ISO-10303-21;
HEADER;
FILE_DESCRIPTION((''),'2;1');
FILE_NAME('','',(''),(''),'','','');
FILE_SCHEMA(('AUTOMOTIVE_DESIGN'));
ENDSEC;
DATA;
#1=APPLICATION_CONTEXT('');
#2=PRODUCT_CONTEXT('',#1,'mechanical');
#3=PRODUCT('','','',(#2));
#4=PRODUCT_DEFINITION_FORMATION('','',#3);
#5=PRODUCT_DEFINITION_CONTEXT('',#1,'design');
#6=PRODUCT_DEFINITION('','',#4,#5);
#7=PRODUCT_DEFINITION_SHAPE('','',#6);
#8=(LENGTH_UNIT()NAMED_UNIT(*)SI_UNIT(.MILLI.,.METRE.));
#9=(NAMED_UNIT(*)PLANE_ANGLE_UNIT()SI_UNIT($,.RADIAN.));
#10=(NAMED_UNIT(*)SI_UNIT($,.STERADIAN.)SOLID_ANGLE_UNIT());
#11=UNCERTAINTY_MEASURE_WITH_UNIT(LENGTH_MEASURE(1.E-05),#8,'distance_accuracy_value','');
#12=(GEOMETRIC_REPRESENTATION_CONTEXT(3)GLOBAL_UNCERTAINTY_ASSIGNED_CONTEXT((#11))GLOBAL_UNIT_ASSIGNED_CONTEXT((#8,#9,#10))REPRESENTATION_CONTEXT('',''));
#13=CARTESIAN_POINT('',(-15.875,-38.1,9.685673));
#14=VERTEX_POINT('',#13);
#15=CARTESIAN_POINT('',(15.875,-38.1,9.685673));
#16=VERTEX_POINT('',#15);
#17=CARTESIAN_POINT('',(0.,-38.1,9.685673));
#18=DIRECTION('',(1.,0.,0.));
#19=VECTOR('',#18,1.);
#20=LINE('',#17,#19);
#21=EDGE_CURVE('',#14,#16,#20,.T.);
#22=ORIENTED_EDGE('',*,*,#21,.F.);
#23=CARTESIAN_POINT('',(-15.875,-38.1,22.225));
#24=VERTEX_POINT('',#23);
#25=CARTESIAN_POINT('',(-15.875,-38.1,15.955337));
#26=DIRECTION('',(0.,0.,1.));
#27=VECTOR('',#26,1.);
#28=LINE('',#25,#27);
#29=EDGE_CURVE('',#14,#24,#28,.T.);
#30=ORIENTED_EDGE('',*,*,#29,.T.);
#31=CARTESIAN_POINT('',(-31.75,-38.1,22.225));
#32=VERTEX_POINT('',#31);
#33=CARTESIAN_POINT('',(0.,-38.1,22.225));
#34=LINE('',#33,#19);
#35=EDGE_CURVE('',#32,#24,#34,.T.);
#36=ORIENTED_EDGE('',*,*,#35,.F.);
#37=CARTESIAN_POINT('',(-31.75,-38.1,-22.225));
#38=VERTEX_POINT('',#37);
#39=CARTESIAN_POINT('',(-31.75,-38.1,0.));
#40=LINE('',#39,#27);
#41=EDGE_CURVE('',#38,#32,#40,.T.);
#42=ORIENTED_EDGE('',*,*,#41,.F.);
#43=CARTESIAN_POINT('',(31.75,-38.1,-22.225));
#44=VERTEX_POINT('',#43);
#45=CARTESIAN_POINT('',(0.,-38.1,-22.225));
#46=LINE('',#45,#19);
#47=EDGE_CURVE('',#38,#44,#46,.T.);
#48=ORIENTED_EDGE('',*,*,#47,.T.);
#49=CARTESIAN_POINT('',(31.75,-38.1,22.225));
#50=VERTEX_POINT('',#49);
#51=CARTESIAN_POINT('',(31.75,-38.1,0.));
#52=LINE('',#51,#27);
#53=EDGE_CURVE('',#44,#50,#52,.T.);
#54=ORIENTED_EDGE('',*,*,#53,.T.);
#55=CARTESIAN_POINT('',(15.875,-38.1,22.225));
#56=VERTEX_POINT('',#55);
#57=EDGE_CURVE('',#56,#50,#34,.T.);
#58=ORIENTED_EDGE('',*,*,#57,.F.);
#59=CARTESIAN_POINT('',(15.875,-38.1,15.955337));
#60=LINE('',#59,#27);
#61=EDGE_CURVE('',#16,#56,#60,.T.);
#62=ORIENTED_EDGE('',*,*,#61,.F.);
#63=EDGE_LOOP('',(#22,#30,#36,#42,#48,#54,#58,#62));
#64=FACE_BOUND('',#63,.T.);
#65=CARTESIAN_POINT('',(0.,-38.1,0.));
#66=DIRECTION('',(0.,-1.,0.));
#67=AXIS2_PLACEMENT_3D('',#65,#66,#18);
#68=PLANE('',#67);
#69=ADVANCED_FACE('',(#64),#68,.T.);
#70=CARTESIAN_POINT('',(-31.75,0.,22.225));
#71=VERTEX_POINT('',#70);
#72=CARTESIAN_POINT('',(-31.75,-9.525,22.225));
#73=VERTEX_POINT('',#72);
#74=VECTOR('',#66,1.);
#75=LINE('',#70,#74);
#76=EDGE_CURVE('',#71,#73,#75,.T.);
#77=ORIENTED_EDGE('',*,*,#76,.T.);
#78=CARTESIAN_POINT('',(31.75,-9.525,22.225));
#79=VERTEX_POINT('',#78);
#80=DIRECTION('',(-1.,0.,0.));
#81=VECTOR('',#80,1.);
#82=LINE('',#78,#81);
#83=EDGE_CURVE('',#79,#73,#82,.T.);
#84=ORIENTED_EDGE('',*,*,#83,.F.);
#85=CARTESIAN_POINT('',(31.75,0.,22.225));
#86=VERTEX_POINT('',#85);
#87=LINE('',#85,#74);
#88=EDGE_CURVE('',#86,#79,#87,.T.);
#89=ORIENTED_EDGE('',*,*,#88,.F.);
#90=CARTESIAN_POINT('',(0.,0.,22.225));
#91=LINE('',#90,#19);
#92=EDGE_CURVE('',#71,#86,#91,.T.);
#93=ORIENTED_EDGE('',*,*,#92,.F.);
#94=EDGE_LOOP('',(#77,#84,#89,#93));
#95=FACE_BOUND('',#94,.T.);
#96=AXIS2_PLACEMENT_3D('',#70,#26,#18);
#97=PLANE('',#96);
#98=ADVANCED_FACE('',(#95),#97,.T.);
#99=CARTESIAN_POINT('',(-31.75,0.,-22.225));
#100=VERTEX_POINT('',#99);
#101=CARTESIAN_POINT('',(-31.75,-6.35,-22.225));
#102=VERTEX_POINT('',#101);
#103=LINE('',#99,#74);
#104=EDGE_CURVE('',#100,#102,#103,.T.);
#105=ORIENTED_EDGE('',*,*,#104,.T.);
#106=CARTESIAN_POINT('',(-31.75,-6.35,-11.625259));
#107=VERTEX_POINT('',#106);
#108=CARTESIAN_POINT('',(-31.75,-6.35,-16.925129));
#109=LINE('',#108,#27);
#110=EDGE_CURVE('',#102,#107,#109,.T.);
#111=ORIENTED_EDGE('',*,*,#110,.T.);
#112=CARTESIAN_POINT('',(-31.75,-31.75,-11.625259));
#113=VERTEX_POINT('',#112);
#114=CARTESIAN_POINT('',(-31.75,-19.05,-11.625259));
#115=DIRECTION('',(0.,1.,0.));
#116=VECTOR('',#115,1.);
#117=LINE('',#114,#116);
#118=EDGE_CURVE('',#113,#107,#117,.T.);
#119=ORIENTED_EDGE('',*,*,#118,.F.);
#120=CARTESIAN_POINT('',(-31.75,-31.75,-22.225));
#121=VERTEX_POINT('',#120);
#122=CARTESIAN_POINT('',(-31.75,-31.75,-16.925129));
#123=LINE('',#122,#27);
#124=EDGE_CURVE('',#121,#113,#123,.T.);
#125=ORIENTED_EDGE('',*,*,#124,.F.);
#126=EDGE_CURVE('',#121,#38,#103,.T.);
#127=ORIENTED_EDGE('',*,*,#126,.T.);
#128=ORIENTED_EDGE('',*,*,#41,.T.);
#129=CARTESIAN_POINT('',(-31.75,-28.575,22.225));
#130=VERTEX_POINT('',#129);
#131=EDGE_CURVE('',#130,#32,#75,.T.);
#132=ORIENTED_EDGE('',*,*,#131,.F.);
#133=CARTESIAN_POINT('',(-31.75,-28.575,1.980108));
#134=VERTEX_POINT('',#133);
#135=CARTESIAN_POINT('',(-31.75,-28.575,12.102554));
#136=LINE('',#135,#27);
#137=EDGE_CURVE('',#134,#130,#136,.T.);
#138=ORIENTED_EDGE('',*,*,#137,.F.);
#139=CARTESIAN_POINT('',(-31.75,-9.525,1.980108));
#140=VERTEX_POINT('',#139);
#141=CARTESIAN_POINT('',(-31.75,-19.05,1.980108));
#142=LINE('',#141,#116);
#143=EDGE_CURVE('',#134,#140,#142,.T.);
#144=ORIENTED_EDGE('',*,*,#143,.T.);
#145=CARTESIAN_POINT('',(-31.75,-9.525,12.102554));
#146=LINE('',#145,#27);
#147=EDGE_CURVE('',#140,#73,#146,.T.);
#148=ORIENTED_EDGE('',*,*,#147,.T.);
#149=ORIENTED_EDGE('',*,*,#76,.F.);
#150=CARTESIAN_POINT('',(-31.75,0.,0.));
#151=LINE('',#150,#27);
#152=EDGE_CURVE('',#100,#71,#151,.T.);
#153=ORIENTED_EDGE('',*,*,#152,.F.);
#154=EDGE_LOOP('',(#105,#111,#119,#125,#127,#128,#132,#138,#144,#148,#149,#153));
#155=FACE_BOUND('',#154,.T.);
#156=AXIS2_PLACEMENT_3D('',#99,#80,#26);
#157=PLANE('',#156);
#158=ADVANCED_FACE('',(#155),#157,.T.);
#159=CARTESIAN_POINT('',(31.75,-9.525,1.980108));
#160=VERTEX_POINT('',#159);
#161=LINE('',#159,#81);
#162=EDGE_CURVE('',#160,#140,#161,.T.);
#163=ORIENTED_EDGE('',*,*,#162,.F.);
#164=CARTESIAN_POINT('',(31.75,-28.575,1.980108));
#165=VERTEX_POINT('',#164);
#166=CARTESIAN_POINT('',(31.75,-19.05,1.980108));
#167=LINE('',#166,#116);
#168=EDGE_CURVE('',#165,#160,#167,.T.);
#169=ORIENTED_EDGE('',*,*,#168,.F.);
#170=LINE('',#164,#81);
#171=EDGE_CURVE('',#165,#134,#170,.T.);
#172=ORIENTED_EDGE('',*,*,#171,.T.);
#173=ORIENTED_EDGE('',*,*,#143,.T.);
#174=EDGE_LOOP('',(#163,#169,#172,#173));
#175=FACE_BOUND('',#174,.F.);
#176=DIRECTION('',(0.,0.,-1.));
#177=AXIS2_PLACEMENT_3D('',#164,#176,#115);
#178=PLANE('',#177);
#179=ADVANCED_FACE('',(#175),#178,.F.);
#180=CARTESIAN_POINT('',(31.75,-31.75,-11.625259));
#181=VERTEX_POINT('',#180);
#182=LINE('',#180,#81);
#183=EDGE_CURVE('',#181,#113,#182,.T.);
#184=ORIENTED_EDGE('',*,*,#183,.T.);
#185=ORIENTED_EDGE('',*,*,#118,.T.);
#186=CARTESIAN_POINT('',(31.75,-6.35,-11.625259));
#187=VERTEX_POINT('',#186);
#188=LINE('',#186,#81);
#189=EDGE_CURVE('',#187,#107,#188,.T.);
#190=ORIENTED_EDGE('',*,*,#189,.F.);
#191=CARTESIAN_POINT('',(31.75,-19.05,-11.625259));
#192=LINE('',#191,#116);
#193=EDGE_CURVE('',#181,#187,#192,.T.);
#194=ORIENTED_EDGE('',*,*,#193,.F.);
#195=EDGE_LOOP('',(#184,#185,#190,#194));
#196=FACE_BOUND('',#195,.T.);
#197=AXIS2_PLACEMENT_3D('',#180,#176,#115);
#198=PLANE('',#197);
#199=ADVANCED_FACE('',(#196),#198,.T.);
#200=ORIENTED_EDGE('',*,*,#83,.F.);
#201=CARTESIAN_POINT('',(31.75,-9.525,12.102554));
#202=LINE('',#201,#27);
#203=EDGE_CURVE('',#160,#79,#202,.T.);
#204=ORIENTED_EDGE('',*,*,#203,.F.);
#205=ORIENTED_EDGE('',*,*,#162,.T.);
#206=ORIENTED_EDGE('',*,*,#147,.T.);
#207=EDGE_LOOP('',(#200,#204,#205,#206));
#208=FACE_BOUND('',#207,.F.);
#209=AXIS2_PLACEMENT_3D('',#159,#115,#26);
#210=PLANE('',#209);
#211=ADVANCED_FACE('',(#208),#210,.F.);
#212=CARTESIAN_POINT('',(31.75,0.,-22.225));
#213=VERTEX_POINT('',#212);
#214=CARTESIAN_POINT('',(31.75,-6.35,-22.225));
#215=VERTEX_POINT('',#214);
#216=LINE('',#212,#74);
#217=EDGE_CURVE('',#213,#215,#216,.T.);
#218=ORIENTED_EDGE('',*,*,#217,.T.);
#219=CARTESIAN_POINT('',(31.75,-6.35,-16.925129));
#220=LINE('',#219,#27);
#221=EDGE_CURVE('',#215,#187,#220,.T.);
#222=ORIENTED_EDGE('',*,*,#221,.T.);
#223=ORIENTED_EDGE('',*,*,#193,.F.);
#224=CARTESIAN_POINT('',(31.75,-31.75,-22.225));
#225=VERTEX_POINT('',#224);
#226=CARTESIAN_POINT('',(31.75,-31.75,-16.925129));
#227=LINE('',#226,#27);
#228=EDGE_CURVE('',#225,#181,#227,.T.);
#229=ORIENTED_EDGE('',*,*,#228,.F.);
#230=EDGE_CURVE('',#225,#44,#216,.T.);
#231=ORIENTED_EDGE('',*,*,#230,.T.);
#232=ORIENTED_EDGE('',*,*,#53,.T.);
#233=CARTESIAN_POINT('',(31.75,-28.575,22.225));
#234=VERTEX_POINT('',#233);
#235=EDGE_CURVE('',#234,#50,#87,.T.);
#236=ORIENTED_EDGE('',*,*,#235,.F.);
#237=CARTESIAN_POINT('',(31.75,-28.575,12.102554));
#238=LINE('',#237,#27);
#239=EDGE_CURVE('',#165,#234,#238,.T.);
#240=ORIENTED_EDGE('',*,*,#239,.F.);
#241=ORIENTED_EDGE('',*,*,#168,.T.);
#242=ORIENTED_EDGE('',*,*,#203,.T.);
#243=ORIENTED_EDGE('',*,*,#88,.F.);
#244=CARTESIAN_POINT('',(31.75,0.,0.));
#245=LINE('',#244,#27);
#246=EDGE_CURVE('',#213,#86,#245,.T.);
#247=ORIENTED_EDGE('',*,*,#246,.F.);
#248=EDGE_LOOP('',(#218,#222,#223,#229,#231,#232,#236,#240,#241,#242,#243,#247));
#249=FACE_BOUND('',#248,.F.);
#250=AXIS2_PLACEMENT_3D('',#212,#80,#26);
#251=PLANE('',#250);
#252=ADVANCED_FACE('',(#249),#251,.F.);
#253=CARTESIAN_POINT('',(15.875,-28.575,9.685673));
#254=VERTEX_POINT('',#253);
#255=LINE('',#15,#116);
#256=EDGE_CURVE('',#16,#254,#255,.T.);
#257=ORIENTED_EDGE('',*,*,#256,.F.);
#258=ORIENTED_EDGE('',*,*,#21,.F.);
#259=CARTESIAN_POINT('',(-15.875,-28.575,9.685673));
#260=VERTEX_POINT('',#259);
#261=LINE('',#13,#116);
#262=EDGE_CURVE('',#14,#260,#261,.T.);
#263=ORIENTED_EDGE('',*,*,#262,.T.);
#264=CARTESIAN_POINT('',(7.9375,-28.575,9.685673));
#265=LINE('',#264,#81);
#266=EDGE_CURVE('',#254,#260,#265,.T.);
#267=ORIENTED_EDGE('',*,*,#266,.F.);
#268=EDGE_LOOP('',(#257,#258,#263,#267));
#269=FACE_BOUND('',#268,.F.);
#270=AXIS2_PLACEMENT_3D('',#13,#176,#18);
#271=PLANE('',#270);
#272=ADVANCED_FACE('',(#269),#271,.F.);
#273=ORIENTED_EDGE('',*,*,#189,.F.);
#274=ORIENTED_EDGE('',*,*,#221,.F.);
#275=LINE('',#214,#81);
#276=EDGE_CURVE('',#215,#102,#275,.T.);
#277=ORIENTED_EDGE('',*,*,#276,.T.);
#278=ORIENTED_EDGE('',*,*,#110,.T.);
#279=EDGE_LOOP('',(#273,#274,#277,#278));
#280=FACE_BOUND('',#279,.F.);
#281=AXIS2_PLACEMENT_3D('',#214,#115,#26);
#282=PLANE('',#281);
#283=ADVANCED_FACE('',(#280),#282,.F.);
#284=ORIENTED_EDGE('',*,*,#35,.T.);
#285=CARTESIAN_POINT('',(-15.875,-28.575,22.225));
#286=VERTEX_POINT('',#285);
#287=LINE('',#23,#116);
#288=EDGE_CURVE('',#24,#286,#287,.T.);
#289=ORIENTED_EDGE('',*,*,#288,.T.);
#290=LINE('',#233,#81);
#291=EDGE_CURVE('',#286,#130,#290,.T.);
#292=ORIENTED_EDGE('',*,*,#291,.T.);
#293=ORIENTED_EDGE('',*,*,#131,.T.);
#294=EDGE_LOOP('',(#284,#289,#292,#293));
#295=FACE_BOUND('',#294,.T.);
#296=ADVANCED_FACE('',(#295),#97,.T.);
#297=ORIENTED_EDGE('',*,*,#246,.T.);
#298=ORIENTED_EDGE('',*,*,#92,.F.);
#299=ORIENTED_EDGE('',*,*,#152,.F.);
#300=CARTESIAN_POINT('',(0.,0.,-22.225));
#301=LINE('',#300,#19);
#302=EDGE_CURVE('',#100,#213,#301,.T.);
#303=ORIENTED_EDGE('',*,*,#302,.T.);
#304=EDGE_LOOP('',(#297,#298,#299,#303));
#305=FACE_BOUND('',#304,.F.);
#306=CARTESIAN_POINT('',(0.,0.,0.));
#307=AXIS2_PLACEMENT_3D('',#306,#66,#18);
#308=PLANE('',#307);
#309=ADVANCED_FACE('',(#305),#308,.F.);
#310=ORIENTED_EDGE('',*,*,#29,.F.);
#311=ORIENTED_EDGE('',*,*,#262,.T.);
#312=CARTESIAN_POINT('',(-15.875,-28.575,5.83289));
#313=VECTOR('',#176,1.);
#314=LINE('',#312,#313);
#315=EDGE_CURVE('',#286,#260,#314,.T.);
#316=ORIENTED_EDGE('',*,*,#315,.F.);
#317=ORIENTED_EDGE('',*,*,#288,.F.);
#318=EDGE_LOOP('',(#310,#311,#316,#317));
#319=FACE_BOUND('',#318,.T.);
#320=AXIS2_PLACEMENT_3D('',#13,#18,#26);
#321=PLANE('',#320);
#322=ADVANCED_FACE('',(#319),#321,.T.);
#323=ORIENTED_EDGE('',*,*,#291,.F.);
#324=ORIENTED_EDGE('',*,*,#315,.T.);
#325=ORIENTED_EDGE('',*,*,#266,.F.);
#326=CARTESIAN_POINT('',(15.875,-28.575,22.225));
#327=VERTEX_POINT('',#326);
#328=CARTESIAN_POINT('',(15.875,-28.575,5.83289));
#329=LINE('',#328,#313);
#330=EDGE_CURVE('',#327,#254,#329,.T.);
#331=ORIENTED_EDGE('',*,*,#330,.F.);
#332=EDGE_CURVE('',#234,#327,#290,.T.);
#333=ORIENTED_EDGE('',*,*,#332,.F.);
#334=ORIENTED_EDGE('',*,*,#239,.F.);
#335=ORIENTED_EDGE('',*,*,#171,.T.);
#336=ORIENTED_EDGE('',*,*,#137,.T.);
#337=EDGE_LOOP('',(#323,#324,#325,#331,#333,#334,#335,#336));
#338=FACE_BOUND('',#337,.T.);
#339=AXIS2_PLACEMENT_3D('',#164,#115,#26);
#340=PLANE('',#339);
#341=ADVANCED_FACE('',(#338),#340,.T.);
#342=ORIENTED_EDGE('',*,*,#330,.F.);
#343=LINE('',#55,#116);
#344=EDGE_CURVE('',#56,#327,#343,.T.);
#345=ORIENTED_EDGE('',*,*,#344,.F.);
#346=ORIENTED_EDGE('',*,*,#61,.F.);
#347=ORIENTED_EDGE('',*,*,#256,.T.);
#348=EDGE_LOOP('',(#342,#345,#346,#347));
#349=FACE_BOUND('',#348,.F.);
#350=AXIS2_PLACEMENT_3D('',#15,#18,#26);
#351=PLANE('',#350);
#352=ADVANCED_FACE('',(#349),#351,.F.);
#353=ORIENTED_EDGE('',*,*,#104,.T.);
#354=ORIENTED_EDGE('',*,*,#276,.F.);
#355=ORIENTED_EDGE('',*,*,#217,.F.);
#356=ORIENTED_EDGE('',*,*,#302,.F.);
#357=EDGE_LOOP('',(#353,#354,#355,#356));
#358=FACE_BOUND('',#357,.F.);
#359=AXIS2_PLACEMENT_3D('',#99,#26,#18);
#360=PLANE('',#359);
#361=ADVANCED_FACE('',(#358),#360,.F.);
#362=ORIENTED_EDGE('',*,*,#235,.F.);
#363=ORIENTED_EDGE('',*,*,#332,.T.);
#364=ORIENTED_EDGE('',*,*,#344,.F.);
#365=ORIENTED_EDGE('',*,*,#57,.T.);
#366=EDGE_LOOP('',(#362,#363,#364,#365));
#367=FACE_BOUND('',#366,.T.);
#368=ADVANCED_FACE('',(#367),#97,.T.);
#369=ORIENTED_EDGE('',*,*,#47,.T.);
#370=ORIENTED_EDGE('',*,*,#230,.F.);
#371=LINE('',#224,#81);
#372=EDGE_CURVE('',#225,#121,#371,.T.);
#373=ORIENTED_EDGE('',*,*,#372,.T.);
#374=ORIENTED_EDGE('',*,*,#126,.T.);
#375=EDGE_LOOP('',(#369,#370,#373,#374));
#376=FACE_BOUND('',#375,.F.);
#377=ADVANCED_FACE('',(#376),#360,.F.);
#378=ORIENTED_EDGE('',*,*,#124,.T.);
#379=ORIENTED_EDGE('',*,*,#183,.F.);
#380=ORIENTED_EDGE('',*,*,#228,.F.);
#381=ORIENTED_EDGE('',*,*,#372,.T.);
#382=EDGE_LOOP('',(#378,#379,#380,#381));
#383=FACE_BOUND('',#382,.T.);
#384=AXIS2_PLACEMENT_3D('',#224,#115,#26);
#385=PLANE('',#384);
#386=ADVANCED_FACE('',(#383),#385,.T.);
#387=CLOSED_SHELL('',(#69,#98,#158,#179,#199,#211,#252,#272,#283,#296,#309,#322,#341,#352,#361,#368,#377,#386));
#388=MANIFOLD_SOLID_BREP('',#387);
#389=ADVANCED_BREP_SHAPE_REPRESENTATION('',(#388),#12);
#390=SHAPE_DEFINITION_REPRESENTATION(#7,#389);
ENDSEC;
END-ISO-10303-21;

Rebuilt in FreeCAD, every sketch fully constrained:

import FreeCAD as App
import Part
import Sketcher
Q = App.Units.Quantity

doc = App.newDocument("Part")
params = doc.addObject("Spreadsheet::Sheet", "Params")
for row, (alias, value) in enumerate([
    ("sketch1_width", "2.5 in"),
    ("sketch1_height", "1.75 in"),
    ("pad1_length", "1.5 in"),
    ("sketch2_width", "0.75 in"),
    ("pocket1_length", "2.5 in"),
    ("sketch3_width", "1.25 in"),
    ("pocket2_length", "1 in"),
    ("sketch4_width", "1 in"),
    ("pocket3_length", "2.5 in"),
], start=1):
    params.set(f"A{row}", alias)
    params.set(f"B{row}", "=" + value)
    params.setAlias(f"B{row}", alias)

body = doc.addObject("PartDesign::Body", "Body")

# Sketch on XZ plane
sketch1 = body.newObject("Sketcher::SketchObject", "Sketch")
sketch1.AttachmentSupport = (doc.getObject("XZ_Plane"), [""])
sketch1.MapMode = "FlatFace"
sketch1.addGeometry(Part.LineSegment(App.Vector(-32, 22, 0), App.Vector(-32, -22, 0)), False)
sketch1.addGeometry(Part.LineSegment(App.Vector(-32, -22, 0), App.Vector(32, -22, 0)), False)
sketch1.addGeometry(Part.LineSegment(App.Vector(32, -22, 0), App.Vector(32, 22, 0)), False)
sketch1.addGeometry(Part.LineSegment(App.Vector(32, 22, 0), App.Vector(-32, 22, 0)), False)
sketch1.addConstraint(Sketcher.Constraint("Coincident", 0, 2, 1, 1))
sketch1.addConstraint(Sketcher.Constraint("Coincident", 1, 2, 2, 1))
sketch1.addConstraint(Sketcher.Constraint("Coincident", 2, 2, 3, 1))
sketch1.addConstraint(Sketcher.Constraint("Coincident", 3, 2, 0, 1))
sketch1.addConstraint(Sketcher.Constraint("Vertical", 0))
sketch1.addConstraint(Sketcher.Constraint("Horizontal", 1))
sketch1.addConstraint(Sketcher.Constraint("Vertical", 2))
sketch1.addConstraint(Sketcher.Constraint("Horizontal", 3))
sketch1.addConstraint(Sketcher.Constraint("Symmetric", 0, 2, 2, 2, -1, 1))
sketch1.addConstraint(Sketcher.Constraint("DistanceX", 1, 1, 1, 2, Q("2.5 in")))
sketch1.addConstraint(Sketcher.Constraint("DistanceY", 0, 2, 0, 1, Q("1.75 in")))
sketch1.setExpression("Constraints[9]", "Params.sketch1_width")
sketch1.setExpression("Constraints[10]", "Params.sketch1_height")
pad1 = body.newObject("PartDesign::Pad", "Pad")
pad1.Profile = sketch1
pad1.setExpression("Length", "Params.pad1_length")

# Sketch on YZ plane
sketch2 = body.newObject("Sketcher::SketchObject", "Sketch001")
sketch2.AttachmentSupport = (doc.getObject("YZ_Plane"), [""])
sketch2.MapMode = "FlatFace"
sketch2.AttachmentOffset = App.Placement(App.Vector(0, 0, 1.25 * 25.4), App.Rotation())
sketch2.addGeometry(Part.LineSegment(App.Vector(-29, 22, 0), App.Vector(-29, 2, 0)), False)
sketch2.addGeometry(Part.LineSegment(App.Vector(-29, 2, 0), App.Vector(-10, 2, 0)), False)
sketch2.addGeometry(Part.LineSegment(App.Vector(-10, 2, 0), App.Vector(-10, 22, 0)), False)
sketch2.addGeometry(Part.LineSegment(App.Vector(-10, 22, 0), App.Vector(-29, 22, 0)), False)
sketch2.addConstraint(Sketcher.Constraint("Coincident", 0, 2, 1, 1))
sketch2.addConstraint(Sketcher.Constraint("Coincident", 1, 2, 2, 1))
sketch2.addConstraint(Sketcher.Constraint("Coincident", 2, 2, 3, 1))
sketch2.addConstraint(Sketcher.Constraint("Coincident", 3, 2, 0, 1))
sketch2.addConstraint(Sketcher.Constraint("Vertical", 0))
sketch2.addConstraint(Sketcher.Constraint("Horizontal", 1))
sketch2.addConstraint(Sketcher.Constraint("Vertical", 2))
sketch2.addConstraint(Sketcher.Constraint("Horizontal", 3))
sketch2.addConstraint(Sketcher.Constraint("DistanceX", 1, 1, 1, 2, Q("0.75 in")))
sketch2.addConstraint(Sketcher.Constraint("DistanceX", 0, 2, -1, 1, Q("1.125 in")))
sketch2.addConstraint(Sketcher.Constraint("DistanceY", -1, 1, 2, 2, Q("0.875 in")))
sketch2.addConstraint(Sketcher.Constraint("DistanceY", 0, 2, 0, 1, Q("20.244892 mm")))
sketch2.setExpression("Constraints[8]", "Params.sketch2_width")
pocket1 = body.newObject("PartDesign::Pocket", "Pocket")
pocket1.Profile = sketch2
pocket1.setExpression("Length", "Params.pocket1_length")

# Sketch on XZ plane
sketch3 = body.newObject("Sketcher::SketchObject", "Sketch002")
sketch3.AttachmentSupport = (doc.getObject("XZ_Plane"), [""])
sketch3.MapMode = "FlatFace"
sketch3.AttachmentOffset = App.Placement(App.Vector(0, 0, 1.5 * 25.4), App.Rotation())
sketch3.addGeometry(Part.LineSegment(App.Vector(-16, 22, 0), App.Vector(-16, 10, 0)), False)
sketch3.addGeometry(Part.LineSegment(App.Vector(-16, 10, 0), App.Vector(16, 10, 0)), False)
sketch3.addGeometry(Part.LineSegment(App.Vector(16, 10, 0), App.Vector(16, 22, 0)), False)
sketch3.addGeometry(Part.LineSegment(App.Vector(16, 22, 0), App.Vector(-16, 22, 0)), False)
sketch3.addConstraint(Sketcher.Constraint("Coincident", 0, 2, 1, 1))
sketch3.addConstraint(Sketcher.Constraint("Coincident", 1, 2, 2, 1))
sketch3.addConstraint(Sketcher.Constraint("Coincident", 2, 2, 3, 1))
sketch3.addConstraint(Sketcher.Constraint("Coincident", 3, 2, 0, 1))
sketch3.addConstraint(Sketcher.Constraint("Vertical", 0))
sketch3.addConstraint(Sketcher.Constraint("Horizontal", 1))
sketch3.addConstraint(Sketcher.Constraint("Vertical", 2))
sketch3.addConstraint(Sketcher.Constraint("Horizontal", 3))
sketch3.addConstraint(Sketcher.Constraint("DistanceX", 1, 1, 1, 2, Q("1.25 in")))
sketch3.addConstraint(Sketcher.Constraint("DistanceX", 0, 2, -1, 1, Q("0.625 in")))
sketch3.addConstraint(Sketcher.Constraint("DistanceY", -1, 1, 2, 2, Q("0.875 in")))
sketch3.addConstraint(Sketcher.Constraint("DistanceY", 0, 2, 0, 1, Q("12.539327 mm")))
sketch3.setExpression("Constraints[8]", "Params.sketch3_width")
pocket2 = body.newObject("PartDesign::Pocket", "Pocket001")
pocket2.Profile = sketch3
pocket2.setExpression("Length", "Params.pocket2_length")

# Sketch on YZ plane
sketch4 = body.newObject("Sketcher::SketchObject", "Sketch003")
sketch4.AttachmentSupport = (doc.getObject("YZ_Plane"), [""])
sketch4.MapMode = "FlatFace"
sketch4.AttachmentOffset = App.Placement(App.Vector(0, 0, 1.25 * 25.4), App.Rotation())
sketch4.addGeometry(Part.LineSegment(App.Vector(-32, -12, 0), App.Vector(-32, -22, 0)), False)
sketch4.addGeometry(Part.LineSegment(App.Vector(-32, -22, 0), App.Vector(-6, -22, 0)), False)
sketch4.addGeometry(Part.LineSegment(App.Vector(-6, -22, 0), App.Vector(-6, -12, 0)), False)
sketch4.addGeometry(Part.LineSegment(App.Vector(-6, -12, 0), App.Vector(-32, -12, 0)), False)
sketch4.addConstraint(Sketcher.Constraint("Coincident", 0, 2, 1, 1))
sketch4.addConstraint(Sketcher.Constraint("Coincident", 1, 2, 2, 1))
sketch4.addConstraint(Sketcher.Constraint("Coincident", 2, 2, 3, 1))
sketch4.addConstraint(Sketcher.Constraint("Coincident", 3, 2, 0, 1))
sketch4.addConstraint(Sketcher.Constraint("Vertical", 0))
sketch4.addConstraint(Sketcher.Constraint("Horizontal", 1))
sketch4.addConstraint(Sketcher.Constraint("Vertical", 2))
sketch4.addConstraint(Sketcher.Constraint("Horizontal", 3))
sketch4.addConstraint(Sketcher.Constraint("DistanceX", 1, 1, 1, 2, Q("1 in")))
sketch4.addConstraint(Sketcher.Constraint("DistanceX", 0, 2, -1, 1, Q("1.25 in")))
sketch4.addConstraint(Sketcher.Constraint("DistanceY", 0, 2, -1, 1, Q("0.875 in")))
sketch4.addConstraint(Sketcher.Constraint("DistanceY", 0, 2, 0, 1, Q("10.599741 mm")))
sketch4.setExpression("Constraints[8]", "Params.sketch4_width")
pocket3 = body.newObject("PartDesign::Pocket", "Pocket002")
pocket3.Profile = sketch4
pocket3.setExpression("Length", "Params.pocket3_length")

doc.recompute()
